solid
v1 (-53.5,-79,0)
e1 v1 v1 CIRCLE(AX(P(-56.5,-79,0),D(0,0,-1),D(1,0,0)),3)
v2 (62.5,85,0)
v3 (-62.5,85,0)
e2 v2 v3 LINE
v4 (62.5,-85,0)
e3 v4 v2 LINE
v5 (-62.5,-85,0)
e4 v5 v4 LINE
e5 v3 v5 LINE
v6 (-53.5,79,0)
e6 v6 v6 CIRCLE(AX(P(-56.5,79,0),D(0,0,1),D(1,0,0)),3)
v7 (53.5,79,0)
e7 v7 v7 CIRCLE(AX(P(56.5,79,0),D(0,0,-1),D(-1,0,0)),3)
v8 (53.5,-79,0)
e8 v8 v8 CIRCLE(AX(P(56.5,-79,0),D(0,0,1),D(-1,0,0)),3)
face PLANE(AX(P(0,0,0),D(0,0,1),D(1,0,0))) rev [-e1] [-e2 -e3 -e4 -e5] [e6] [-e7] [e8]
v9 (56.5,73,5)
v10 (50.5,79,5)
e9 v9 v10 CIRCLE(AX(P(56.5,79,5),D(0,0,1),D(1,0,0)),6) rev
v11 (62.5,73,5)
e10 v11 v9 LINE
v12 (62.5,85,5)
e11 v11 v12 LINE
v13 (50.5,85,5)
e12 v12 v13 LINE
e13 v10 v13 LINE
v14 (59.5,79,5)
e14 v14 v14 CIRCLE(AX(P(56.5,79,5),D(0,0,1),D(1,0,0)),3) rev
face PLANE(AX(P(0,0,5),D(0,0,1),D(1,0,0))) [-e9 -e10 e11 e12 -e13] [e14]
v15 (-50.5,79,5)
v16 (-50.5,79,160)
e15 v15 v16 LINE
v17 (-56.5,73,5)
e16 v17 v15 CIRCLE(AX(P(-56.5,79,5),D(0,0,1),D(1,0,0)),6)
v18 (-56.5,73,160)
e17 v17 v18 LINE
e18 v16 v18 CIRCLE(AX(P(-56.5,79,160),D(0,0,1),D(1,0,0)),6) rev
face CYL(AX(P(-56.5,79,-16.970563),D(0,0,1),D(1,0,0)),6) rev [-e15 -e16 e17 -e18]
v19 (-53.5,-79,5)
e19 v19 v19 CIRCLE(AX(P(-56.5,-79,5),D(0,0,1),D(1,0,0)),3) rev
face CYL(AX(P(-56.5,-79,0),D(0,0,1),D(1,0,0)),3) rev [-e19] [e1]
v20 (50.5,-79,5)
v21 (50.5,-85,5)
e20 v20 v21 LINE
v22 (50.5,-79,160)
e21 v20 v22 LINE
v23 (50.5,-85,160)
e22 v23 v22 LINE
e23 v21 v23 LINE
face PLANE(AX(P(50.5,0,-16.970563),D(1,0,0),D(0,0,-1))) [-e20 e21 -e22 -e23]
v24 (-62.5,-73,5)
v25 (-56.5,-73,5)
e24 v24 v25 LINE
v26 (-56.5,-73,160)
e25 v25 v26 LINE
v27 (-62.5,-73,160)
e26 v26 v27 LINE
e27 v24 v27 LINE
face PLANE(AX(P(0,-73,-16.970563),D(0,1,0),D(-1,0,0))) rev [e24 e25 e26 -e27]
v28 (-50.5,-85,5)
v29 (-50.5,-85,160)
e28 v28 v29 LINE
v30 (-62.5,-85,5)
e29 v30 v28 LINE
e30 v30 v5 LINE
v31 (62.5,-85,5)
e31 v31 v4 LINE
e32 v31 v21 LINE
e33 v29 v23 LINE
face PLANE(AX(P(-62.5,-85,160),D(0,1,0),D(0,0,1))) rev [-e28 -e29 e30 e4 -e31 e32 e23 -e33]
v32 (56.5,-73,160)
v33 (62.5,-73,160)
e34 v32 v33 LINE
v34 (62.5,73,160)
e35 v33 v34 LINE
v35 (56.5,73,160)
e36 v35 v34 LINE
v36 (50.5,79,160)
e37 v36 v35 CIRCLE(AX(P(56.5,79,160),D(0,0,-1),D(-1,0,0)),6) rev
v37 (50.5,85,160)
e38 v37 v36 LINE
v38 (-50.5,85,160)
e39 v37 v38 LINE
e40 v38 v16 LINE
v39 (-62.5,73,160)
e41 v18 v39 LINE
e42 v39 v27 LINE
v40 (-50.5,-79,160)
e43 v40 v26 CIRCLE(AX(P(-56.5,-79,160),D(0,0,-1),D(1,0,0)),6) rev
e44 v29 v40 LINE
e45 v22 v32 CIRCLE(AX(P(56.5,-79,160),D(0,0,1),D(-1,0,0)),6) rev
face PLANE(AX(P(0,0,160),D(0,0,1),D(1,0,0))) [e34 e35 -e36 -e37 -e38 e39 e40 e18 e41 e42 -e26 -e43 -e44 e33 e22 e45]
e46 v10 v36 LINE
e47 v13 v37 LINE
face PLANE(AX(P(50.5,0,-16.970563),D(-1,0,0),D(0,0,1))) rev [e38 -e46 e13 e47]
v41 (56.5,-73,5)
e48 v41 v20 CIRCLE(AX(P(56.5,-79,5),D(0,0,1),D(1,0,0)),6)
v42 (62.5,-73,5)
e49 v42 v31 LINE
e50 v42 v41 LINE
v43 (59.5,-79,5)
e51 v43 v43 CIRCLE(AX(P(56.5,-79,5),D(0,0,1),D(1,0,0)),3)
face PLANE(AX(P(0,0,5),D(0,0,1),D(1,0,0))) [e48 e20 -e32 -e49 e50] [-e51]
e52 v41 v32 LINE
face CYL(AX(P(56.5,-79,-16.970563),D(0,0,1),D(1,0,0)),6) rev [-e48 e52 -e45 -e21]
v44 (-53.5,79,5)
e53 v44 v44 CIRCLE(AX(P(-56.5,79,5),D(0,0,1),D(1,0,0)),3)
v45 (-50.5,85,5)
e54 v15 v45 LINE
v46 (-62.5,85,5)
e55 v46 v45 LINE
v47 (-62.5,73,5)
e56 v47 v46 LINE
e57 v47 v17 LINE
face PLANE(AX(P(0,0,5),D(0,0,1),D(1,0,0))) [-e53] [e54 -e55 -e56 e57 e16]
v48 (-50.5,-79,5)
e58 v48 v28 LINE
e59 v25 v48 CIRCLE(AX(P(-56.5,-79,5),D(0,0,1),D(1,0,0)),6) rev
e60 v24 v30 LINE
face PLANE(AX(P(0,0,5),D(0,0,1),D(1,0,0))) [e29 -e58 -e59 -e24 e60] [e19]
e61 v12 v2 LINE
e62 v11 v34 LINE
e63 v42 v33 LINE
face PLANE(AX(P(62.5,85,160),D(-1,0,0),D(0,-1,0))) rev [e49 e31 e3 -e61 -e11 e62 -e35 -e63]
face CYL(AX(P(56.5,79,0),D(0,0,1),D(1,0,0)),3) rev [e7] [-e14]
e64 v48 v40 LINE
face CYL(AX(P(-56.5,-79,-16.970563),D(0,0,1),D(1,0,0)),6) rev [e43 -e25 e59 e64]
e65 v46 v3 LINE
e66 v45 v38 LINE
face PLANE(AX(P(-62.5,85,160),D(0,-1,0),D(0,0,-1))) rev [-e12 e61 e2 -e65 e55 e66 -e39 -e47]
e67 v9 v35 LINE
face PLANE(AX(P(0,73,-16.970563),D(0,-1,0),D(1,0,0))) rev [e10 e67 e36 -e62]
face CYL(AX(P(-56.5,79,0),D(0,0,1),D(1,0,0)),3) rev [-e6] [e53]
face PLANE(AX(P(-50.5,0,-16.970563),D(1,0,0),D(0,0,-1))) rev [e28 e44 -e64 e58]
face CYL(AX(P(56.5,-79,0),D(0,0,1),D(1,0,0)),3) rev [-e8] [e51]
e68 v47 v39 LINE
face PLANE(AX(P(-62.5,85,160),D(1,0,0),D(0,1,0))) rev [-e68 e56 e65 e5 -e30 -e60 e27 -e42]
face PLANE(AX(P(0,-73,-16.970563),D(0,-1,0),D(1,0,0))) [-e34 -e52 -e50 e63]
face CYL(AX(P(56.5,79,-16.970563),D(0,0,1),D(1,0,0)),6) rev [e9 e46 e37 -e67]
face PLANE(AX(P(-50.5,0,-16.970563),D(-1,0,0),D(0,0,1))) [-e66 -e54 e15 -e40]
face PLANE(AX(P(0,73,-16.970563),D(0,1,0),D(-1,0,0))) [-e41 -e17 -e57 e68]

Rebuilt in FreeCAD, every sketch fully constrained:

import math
import FreeCAD as App
import Part
import Sketcher
Q = App.Units.Quantity

doc = App.newDocument("Part")
body = doc.addObject("PartDesign::Body", "Body")

sketch1 = doc.addObject("Sketcher::SketchObject", "Sketch")
body.addObject(sketch1)
sketch1.AttachmentSupport = (doc.XY_Plane, [""])
sketch1.MapMode = "FlatFace"
sketch1.addGeometry(Part.LineSegment(App.Vector(-62, 85, 0), App.Vector(-62, -85, 0)), False)
sketch1.addGeometry(Part.LineSegment(App.Vector(-62, -85, 0), App.Vector(62, -85, 0)), False)
sketch1.addGeometry(Part.LineSegment(App.Vector(62, -85, 0), App.Vector(62, 85, 0)), False)
sketch1.addGeometry(Part.LineSegment(App.Vector(62, 85, 0), App.Vector(-62, 85, 0)), False)
sketch1.addConstraint(Sketcher.Constraint("Coincident", 0, 2, 1, 1))
sketch1.addConstraint(Sketcher.Constraint("Coincident", 1, 2, 2, 1))
sketch1.addConstraint(Sketcher.Constraint("Coincident", 2, 2, 3, 1))
sketch1.addConstraint(Sketcher.Constraint("Coincident", 3, 2, 0, 1))
sketch1.addConstraint(Sketcher.Constraint("Vertical", 0))
sketch1.addConstraint(Sketcher.Constraint("Horizontal", 1))
sketch1.addConstraint(Sketcher.Constraint("Vertical", 2))
sketch1.addConstraint(Sketcher.Constraint("Horizontal", 3))
sketch1.addConstraint(Sketcher.Constraint("Symmetric", 0, 2, 2, 2, -1, 1))
sketch1.addConstraint(Sketcher.Constraint("DistanceX", 1, 1, 1, 2, Q("125 mm")))
sketch1.addConstraint(Sketcher.Constraint("DistanceY", 0, 2, 0, 1, Q("170 mm")))
pad1 = doc.addObject("PartDesign::Pad", "Pad")
body.addObject(pad1)
pad1.Profile = sketch1
pad1.Length = 160

sketch2 = doc.addObject("Sketcher::SketchObject", "Sketch001")
body.addObject(sketch2)
sketch2.AttachmentSupport = (doc.XY_Plane, [""])
sketch2.MapMode = "FlatFace"
sketch2.AttachmentOffset = App.Placement(App.Vector(0, 0, 160), App.Rotation())
sketch2.addGeometry(Part.LineSegment(App.Vector(-50, 85, 0), App.Vector(-62, 85, 0)), False)
sketch2.addGeometry(Part.LineSegment(App.Vector(-62, 85, 0), App.Vector(-62, 73, 0)), False)
sketch2.addGeometry(Part.LineSegment(App.Vector(-62, 73, 0), App.Vector(-56, 73, 0)), False)
sketch2.addGeometry(Part.ArcOfCircle(Part.Circle(App.Vector(-56, 79, 0), App.Vector(0, 0, 1), 6), math.radians(-90), math.radians(0)), False)
sketch2.addGeometry(Part.LineSegment(App.Vector(-50, 79, 0), App.Vector(-50, 85, 0)), False)
sketch2.addConstraint(Sketcher.Constraint("Coincident", 0, 2, 1, 1))
sketch2.addConstraint(Sketcher.Constraint("Coincident", 1, 2, 2, 1))
sketch2.addConstraint(Sketcher.Constraint("Tangent", 2, 2, 3, 1))
sketch2.addConstraint(Sketcher.Constraint("Tangent", 3, 2, 4, 1))
sketch2.addConstraint(Sketcher.Constraint("Coincident", 4, 2, 0, 1))
sketch2.addConstraint(Sketcher.Constraint("Horizontal", 0))
sketch2.addConstraint(Sketcher.Constraint("Vertical", 1))
sketch2.addConstraint(Sketcher.Constraint("Horizontal", 2))
sketch2.addConstraint(Sketcher.Constraint("Vertical", 4))
sketch2.addConstraint(Sketcher.Constraint("Equal", 0, 1))
sketch2.addConstraint(Sketcher.Constraint("Radius", 3, Q("6 mm")))
sketch2.addConstraint(Sketcher.Constraint("DistanceX", 0, 2, 0, 1, Q("12 mm")))
sketch2.addConstraint(Sketcher.Constraint("DistanceY", -1, 1, 3, 3, Q("79 mm")))
sketch2.addConstraint(Sketcher.Constraint("DistanceX", 3, 3, -1, 1, Q("56.5 mm")))
pocket1 = doc.addObject("PartDesign::Pocket", "Pocket")
body.addObject(pocket1)
pocket1.Profile = sketch2
pocket1.Length = 155

sketch3 = doc.addObject("Sketcher::SketchObject", "Sketch002")
body.addObject(sketch3)
sketch3.AttachmentSupport = (doc.XY_Plane, [""])
sketch3.MapMode = "FlatFace"
sketch3.AttachmentOffset = App.Placement(App.Vector(0, 0, 160), App.Rotation())
sketch3.addGeometry(Part.Circle(App.Vector(-56.5, 79, 0), App.Vector(0, 0, 1), 3), False)
sketch3.addConstraint(Sketcher.Constraint("Diameter", 0, Q("6 mm")))
sketch3.addConstraint(Sketcher.Constraint("DistanceY", -1, 1, 0, 3, Q("79 mm")))
sketch3.addConstraint(Sketcher.Constraint("DistanceX", 0, 3, -1, 1, Q("56.5 mm")))
pocket2 = doc.addObject("PartDesign::Pocket", "Pocket001")
body.addObject(pocket2)
pocket2.Profile = sketch3
pocket2.Type = "ThroughAll"
doc.recompute()

mirrored = doc.addObject("PartDesign::Mirrored", "Mirrored")
body.addObject(mirrored)
mirrored.Originals = [pocket1, pocket2]
mirrored.MirrorPlane = (doc.XZ_Plane, [""])
body.Tip = mirrored
doc.recompute()

mirrored2 = doc.addObject("PartDesign::Mirrored", "Mirrored001")
body.addObject(mirrored2)
mirrored2.Originals = [pocket1, pocket2]
mirrored2.MirrorPlane = (doc.YZ_Plane, [""])
body.Tip = mirrored2

sketch4 = doc.addObject("Sketcher::SketchObject", "Sketch003")
body.addObject(sketch4)
sketch4.AttachmentSupport = (doc.XY_Plane, [""])
sketch4.MapMode = "FlatFace"
sketch4.AttachmentOffset = App.Placement(App.Vector(0, 0, 160), App.Rotation())
sketch4.addGeometry(Part.LineSegment(App.Vector(50, -85, 0), App.Vector(62, -85, 0)), False)
sketch4.addGeometry(Part.LineSegment(App.Vector(62, -85, 0), App.Vector(62, -73, 0)), False)
sketch4.addGeometry(Part.LineSegment(App.Vector(62, -73, 0), App.Vector(56, -73, 0)), False)
sketch4.addGeometry(Part.ArcOfCircle(Part.Circle(App.Vector(56, -79, 0), App.Vector(0, 0, 1), 6), math.radians(90), math.radians(180)), False)
sketch4.addGeometry(Part.LineSegment(App.Vector(50, -79, 0), App.Vector(50, -85, 0)), False)
sketch4.addConstraint(Sketcher.Constraint("Coincident", 0, 2, 1, 1))
sketch4.addConstraint(Sketcher.Constraint("Coincident", 1, 2, 2, 1))
sketch4.addConstraint(Sketcher.Constraint("Tangent", 2, 2, 3, 1))
sketch4.addConstraint(Sketcher.Constraint("Tangent", 3, 2, 4, 1))
sketch4.addConstraint(Sketcher.Constraint("Coincident", 4, 2, 0, 1))
sketch4.addConstraint(Sketcher.Constraint("Horizontal", 0))
sketch4.addConstraint(Sketcher.Constraint("Vertical", 1))
sketch4.addConstraint(Sketcher.Constraint("Horizontal", 2))
sketch4.addConstraint(Sketcher.Constraint("Vertical", 4))
sketch4.addConstraint(Sketcher.Constraint("Equal", 0, 1))
sketch4.addConstraint(Sketcher.Constraint("Radius", 3, Q("6 mm")))
sketch4.addConstraint(Sketcher.Constraint("DistanceX", 0, 1, 0, 2, Q("12 mm")))
sketch4.addConstraint(Sketcher.Constraint("DistanceY", 3, 3, -1, 1, Q("79 mm")))
sketch4.addConstraint(Sketcher.Constraint("DistanceX", -1, 1, 3, 3, Q("56.5 mm")))
pocket3 = doc.addObject("PartDesign::Pocket", "Pocket002")
body.addObject(pocket3)
pocket3.Profile = sketch4
pocket3.Length = 155

sketch5 = doc.addObject("Sketcher::SketchObject", "Sketch004")
body.addObject(sketch5)
sketch5.AttachmentSupport = (doc.XY_Plane, [""])
sketch5.MapMode = "FlatFace"
sketch5.AttachmentOffset = App.Placement(App.Vector(0, 0, 160), App.Rotation())
sketch5.addGeometry(Part.Circle(App.Vector(56.5, -79, 0), App.Vector(0, 0, 1), 3), False)
sketch5.addConstraint(Sketcher.Constraint("Diameter", 0, Q("6 mm")))
sketch5.addConstraint(Sketcher.Constraint("DistanceY", 0, 3, -1, 1, Q("79 mm")))
sketch5.addConstraint(Sketcher.Constraint("DistanceX", -1, 1, 0, 3, Q("56.5 mm")))
pocket4 = doc.addObject("PartDesign::Pocket", "Pocket003")
body.addObject(pocket4)
pocket4.Profile = sketch5
pocket4.Type = "ThroughAll"

doc.recompute()
